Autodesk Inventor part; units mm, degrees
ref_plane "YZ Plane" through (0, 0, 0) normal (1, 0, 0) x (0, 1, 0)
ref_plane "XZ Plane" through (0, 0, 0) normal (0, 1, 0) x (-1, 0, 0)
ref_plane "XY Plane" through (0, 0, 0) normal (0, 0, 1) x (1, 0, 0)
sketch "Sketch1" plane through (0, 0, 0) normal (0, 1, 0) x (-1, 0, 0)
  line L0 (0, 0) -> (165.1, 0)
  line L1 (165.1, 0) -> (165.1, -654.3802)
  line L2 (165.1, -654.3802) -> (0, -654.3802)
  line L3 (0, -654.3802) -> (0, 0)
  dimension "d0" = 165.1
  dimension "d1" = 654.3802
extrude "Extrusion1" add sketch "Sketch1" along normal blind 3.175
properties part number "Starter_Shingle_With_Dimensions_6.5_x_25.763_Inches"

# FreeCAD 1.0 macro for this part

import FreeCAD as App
import Part
import Sketcher
from FreeCAD import Vector
Q = App.Units.Quantity

doc = App.newDocument("Part")
body = doc.addObject("PartDesign::Body", "Body")

sketch1 = body.newObject("Sketcher::SketchObject", "Sketch")
sketch1.AttachmentSupport = (doc.getObject("XZ_Plane"), [""])
sketch1.MapMode = "FlatFace"
sketch1.addGeometry([
    Part.LineSegment(Vector(-165, 0, 0), Vector(0, 0, 0)),
    Part.LineSegment(Vector(0, 0, 0), Vector(0, -654, 0)),
    Part.LineSegment(Vector(0, -654, 0), Vector(-165, -654, 0)),
    Part.LineSegment(Vector(-165, -654, 0), Vector(-165, 0, 0)),
], False)
sketch1.addConstraint([
    Sketcher.Constraint("Coincident", 0, 2, 1, 1),
    Sketcher.Constraint("Coincident", 1, 2, 2, 1),
    Sketcher.Constraint("Coincident", 2, 2, 3, 1),
    Sketcher.Constraint("Coincident", 3, 2, 0, 1),
    Sketcher.Constraint("Horizontal", 0),
    Sketcher.Constraint("Vertical", 1),
    Sketcher.Constraint("Horizontal", 2),
    Sketcher.Constraint("Vertical", 3),
    Sketcher.Constraint("Coincident", 0, 2, -1, 1),
    Sketcher.Constraint("DistanceX", 0, 1, 0, 2, Q("6.5 in")),
    Sketcher.Constraint("DistanceY", 1, 2, 1, 1, Q("25.763 in")),
])
pad1 = body.newObject("PartDesign::Pad", "Pad")
pad1.Profile = sketch1
pad1.Length = Q("0.125 in")
pad1.Reversed = True

doc.recompute()
